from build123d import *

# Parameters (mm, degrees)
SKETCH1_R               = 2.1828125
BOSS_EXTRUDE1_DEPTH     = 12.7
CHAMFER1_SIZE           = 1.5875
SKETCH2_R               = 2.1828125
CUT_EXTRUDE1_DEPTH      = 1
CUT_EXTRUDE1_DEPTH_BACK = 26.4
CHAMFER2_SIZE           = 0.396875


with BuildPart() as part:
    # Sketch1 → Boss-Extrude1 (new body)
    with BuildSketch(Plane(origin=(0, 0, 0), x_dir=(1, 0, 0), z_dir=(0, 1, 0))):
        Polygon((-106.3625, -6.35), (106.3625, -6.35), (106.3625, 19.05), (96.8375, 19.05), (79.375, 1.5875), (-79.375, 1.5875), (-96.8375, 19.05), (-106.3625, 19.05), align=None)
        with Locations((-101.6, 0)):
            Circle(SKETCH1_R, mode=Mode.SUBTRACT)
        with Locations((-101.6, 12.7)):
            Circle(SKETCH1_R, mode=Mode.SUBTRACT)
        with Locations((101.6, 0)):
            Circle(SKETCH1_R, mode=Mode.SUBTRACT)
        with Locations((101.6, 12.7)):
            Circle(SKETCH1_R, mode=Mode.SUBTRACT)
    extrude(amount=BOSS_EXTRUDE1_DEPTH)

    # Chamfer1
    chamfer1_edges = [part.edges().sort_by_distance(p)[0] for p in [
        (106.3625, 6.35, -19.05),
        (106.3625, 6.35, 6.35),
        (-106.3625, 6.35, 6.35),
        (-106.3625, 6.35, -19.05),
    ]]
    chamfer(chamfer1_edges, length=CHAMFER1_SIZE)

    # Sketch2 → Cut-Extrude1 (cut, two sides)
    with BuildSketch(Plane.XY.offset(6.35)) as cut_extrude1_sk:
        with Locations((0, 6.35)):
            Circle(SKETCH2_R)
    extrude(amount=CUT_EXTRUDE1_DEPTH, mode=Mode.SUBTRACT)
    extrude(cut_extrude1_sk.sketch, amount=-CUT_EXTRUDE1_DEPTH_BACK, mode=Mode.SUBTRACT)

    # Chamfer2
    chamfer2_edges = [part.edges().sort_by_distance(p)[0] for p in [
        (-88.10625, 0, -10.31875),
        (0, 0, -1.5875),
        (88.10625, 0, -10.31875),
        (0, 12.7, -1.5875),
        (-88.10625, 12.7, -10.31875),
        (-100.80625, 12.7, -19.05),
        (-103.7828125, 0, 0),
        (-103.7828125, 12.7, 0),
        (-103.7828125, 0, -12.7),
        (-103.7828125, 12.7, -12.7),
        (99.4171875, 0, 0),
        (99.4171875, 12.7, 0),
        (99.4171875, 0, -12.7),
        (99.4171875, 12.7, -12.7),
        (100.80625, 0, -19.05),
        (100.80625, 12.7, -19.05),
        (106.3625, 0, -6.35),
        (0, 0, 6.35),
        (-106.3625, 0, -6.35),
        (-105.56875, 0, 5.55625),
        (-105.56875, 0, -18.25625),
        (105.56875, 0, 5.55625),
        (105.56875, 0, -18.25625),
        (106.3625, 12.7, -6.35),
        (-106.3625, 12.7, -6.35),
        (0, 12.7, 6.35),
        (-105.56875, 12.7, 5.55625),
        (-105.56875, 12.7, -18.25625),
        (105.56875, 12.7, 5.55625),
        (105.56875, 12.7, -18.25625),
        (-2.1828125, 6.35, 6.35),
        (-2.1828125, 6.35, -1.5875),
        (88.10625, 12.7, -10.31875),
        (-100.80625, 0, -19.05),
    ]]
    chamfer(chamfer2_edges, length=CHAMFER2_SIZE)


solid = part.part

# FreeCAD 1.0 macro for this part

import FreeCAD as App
import Part
import Sketcher

V = App.Vector
Q = App.Units.Quantity


def edges_at(feature, points):
    """Names of the edges that pass closest to the given points."""
    edges = feature.Shape.Edges
    near = lambda p: min(range(len(edges)), key=lambda i: edges[i].distToShape(Part.Vertex(*p))[0])
    return sorted({f"Edge{near(p) + 1}" for p in points})

doc = App.newDocument("Part")
params = doc.addObject("Spreadsheet::Sheet", "Params")
for row, (alias, value) in enumerate([
    ("sketch1_height", "1 in"),
    ("sketch1_diameter", "0.171875 in"),
    ("sketch1_width", "6.25 in"),
    ("sketch1_width2", "8.375 in"),
    ("sketch1_width3", "0.375 in"),
    ("pad1_length", "0.5 in"),
    ("chamfer_size", "0.0625 in"),
    ("sketch2_diameter", "0.171875 in"),
    ("chamfer2_size", "0.015625 in"),
], start=1):
    params.set(f"A{row}", alias)
    params.set(f"B{row}", "=" + value)
    params.setAlias(f"B{row}", alias)

body = doc.addObject("PartDesign::Body", "Body")

sketch1 = body.newObject("Sketcher::SketchObject", "Sketch")
sketch1.AttachmentSupport = (doc.getObject("XZ_Plane"), [""])
sketch1.MapMode = "FlatFace"
sketch1.addGeometry(Part.LineSegment(V(-106.3625, 6.35, 0), V(106.3625, 6.35, 0)), False)
sketch1.addGeometry(Part.LineSegment(V(106.3625, 6.35, 0), V(106.3625, -19.05, 0)), False)
sketch1.addGeometry(Part.LineSegment(V(106.3625, -19.05, 0), V(96.8375, -19.05, 0)), False)
sketch1.addGeometry(Part.LineSegment(V(96.8375, -19.05, 0), V(79.375, -1.5875, 0)), False)
sketch1.addGeometry(Part.LineSegment(V(79.375, -1.5875, 0), V(-79.375, -1.5875, 0)), False)
sketch1.addGeometry(Part.LineSegment(V(-79.375, -1.5875, 0), V(-96.8375, -19.05, 0)), False)
sketch1.addGeometry(Part.LineSegment(V(-96.8375, -19.05, 0), V(-106.3625, -19.05, 0)), False)
sketch1.addGeometry(Part.LineSegment(V(-106.3625, -19.05, 0), V(-106.3625, 6.35, 0)), False)
sketch1.addGeometry(Part.Circle(V(-101.6, 0, 0), V(0, 0, 1), 2.182812), False)
sketch1.addGeometry(Part.Circle(V(101.6, 0, 0), V(0, 0, 1), 2.182812), False)
sketch1.addGeometry(Part.Circle(V(-101.6, -12.7, 0), V(0, 0, 1), 2.182812), False)
sketch1.addGeometry(Part.Circle(V(101.6, -12.7, 0), V(0, 0, 1), 2.182812), False)
sketch1.addConstraint(Sketcher.Constraint("Coincident", 0, 2, 1, 1))
sketch1.addConstraint(Sketcher.Constraint("Coincident", 1, 2, 2, 1))
sketch1.addConstraint(Sketcher.Constraint("Coincident", 2, 2, 3, 1))
sketch1.addConstraint(Sketcher.Constraint("Coincident", 3, 2, 4, 1))
sketch1.addConstraint(Sketcher.Constraint("Coincident", 4, 2, 5, 1))
sketch1.addConstraint(Sketcher.Constraint("Coincident", 5, 2, 6, 1))
sketch1.addConstraint(Sketcher.Constraint("Coincident", 6, 2, 7, 1))
sketch1.addConstraint(Sketcher.Constraint("Coincident", 7, 2, 0, 1))
sketch1.addConstraint(Sketcher.Constraint("Horizontal", 0))
sketch1.addConstraint(Sketcher.Constraint("Vertical", 1))
sketch1.addConstraint(Sketcher.Constraint("Horizontal", 2))
sketch1.addConstraint(Sketcher.Constraint("Horizontal", 4))
sketch1.addConstraint(Sketcher.Constraint("Horizontal", 6))
sketch1.addConstraint(Sketcher.Constraint("Vertical", 7))
sketch1.addConstraint(Sketcher.Constraint("Equal", 8, 9))
sketch1.addConstraint(Sketcher.Constraint("Equal", 9, 10))
sketch1.addConstraint(Sketcher.Constraint("Equal", 10, 11))
sketch1.addConstraint(Sketcher.Constraint("Symmetric", 8, 3, 9, 3, -1, 1))
sketch1.addConstraint(Sketcher.Constraint("Symmetric", 10, 3, 11, 3, -2))
sketch1.addConstraint(Sketcher.Constraint("Symmetric", 2, 2, 5, 2, -2))
sketch1.addConstraint(Sketcher.Constraint("PointOnObject", 8, 3, -1))
sketch1.addConstraint(Sketcher.Constraint("Perpendicular", 3, 5))
sketch1.addConstraint(Sketcher.Constraint("Vertical", 8, 3, 10, 3))
sketch1.addConstraint(Sketcher.Constraint("Equal", 2, 6))
sketch1.addConstraint(Sketcher.Constraint("Equal", 3, 5))
sketch1.addConstraint(Sketcher.Constraint("DistanceY", 1, 2, 1, 1, Q("1 in")))
sketch1.addConstraint(Sketcher.Constraint("Diameter", 8, Q("0.171875 in")))
sketch1.addConstraint(Sketcher.Constraint("DistanceX", 8, 3, -1, 1, Q("4 in")))
sketch1.addConstraint(Sketcher.Constraint("DistanceX", 4, 2, 4, 1, Q("6.25 in")))
sketch1.addConstraint(Sketcher.Constraint("DistanceY", 10, 3, -1, 1, Q("0.5 in")))
sketch1.addConstraint(Sketcher.Constraint("DistanceX", 0, 1, 0, 2, Q("8.375 in")))
sketch1.addConstraint(Sketcher.Constraint("DistanceX", 2, 2, 2, 1, Q("0.375 in")))
sketch1.addConstraint(Sketcher.Constraint("DistanceY", -1, 1, 0, 2, Q("0.25 in")))
sketch1.setExpression("Constraints[25]", "Params.sketch1_height")
sketch1.setExpression("Constraints[26]", "Params.sketch1_diameter")
sketch1.setExpression("Constraints[28]", "Params.sketch1_width")
sketch1.setExpression("Constraints[30]", "Params.sketch1_width2")
sketch1.setExpression("Constraints[31]", "Params.sketch1_width3")
pad1 = body.newObject("PartDesign::Pad", "Pad")
pad1.Profile = sketch1
pad1.setExpression("Length", "Params.pad1_length")
pad1.Reversed = True
doc.recompute()

chamfer = body.newObject("PartDesign::Chamfer", "Chamfer")
chamfer.Base = (pad1, edges_at(pad1, [
    (106.362, 6.35, -19.05),
    (106.362, 6.35, 6.35),
    (-106.362, 6.35, 6.35),
    (-106.362, 6.35, -19.05),
]))
chamfer.setExpression("Size", "Params.chamfer_size")

sketch2 = body.newObject("Sketcher::SketchObject", "Sketch001")
sketch2.AttachmentSupport = (doc.getObject("XY_Plane"), [""])
sketch2.MapMode = "FlatFace"
sketch2.AttachmentOffset = App.Placement(V(0, 0, 0.25 * 25.4), App.Rotation())
sketch2.addGeometry(Part.Circle(V(0, 6.35, 0), V(0, 0, 1), 2.182812), False)
sketch2.addConstraint(Sketcher.Constraint("PointOnObject", 0, 3, -2))
sketch2.addConstraint(Sketcher.Constraint("Diameter", 0, Q("0.171875 in")))
sketch2.addConstraint(Sketcher.Constraint("DistanceY", -1, 1, 0, 3, Q("0.25 in")))
sketch2.setExpression("Constraints[1]", "Params.sketch2_diameter")
pocket1 = body.newObject("PartDesign::Pocket", "Pocket")
pocket1.Profile = sketch2
pocket1.Type = "ThroughAll"
pocket1.Midplane = True
doc.recompute()

chamfer2 = body.newObject("PartDesign::Chamfer", "Chamfer001")
chamfer2.Base = (pocket1, edges_at(pocket1, [
    (-88.106, 0, -10.319),
    (0, 0, -1.587),
    (88.106, 0, -10.319),
    (0, 12.7, -1.587),
    (-88.106, 12.7, -10.319),
    (-100.806, 12.7, -19.05),
    (-103.783, 0, 0),
    (-103.783, 12.7, 0),
    (-103.783, 0, -12.7),
    (-103.783, 12.7, -12.7),
    (99.417, 0, 0),
    (99.417, 12.7, 0),
    (99.417, 0, -12.7),
    (99.417, 12.7, -12.7),
    (100.806, 0, -19.05),
    (100.806, 12.7, -19.05),
    (106.362, 0, -6.35),
    (0, 0, 6.35),
    (-106.362, 0, -6.35),
    (-105.569, 0, 5.556),
    (-105.569, 0, -18.256),
    (105.569, 0, 5.556),
    (105.569, 0, -18.256),
    (106.362, 12.7, -6.35),
    (-106.362, 12.7, -6.35),
    (0, 12.7, 6.35),
    (-105.569, 12.7, 5.556),
    (-105.569, 12.7, -18.256),
    (105.569, 12.7, 5.556),
    (105.569, 12.7, -18.256),
    (-2.183, 6.35, 6.35),
    (-2.183, 6.35, -1.587),
    (88.106, 12.7, -10.319),
    (-100.806, 0, -19.05),
]))
chamfer2.setExpression("Size", "Params.chamfer2_size")

doc.recompute()
